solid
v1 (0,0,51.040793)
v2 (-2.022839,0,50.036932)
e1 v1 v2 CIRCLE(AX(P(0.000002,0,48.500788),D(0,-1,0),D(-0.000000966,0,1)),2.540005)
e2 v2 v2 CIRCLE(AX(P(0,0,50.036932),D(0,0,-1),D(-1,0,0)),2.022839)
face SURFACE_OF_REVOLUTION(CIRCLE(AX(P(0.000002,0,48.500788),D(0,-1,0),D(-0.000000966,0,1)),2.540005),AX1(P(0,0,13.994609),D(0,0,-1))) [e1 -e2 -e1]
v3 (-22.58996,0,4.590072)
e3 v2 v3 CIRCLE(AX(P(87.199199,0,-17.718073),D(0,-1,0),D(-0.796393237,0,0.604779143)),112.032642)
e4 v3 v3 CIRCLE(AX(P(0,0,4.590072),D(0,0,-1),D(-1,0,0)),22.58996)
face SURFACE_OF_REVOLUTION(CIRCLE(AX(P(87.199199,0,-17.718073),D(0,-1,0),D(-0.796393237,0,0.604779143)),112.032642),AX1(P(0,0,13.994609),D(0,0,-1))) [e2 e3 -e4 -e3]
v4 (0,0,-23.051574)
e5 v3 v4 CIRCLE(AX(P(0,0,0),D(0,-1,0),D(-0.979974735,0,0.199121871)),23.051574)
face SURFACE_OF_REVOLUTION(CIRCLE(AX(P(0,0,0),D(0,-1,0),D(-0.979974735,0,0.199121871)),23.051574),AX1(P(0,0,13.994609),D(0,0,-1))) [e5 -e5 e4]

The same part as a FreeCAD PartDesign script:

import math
import FreeCAD as App
import Part
import Sketcher

doc = App.newDocument("Part")
body = doc.addObject("PartDesign::Body", "Body")

# Sketch on XZ plane
sketch1 = body.newObject("Sketcher::SketchObject", "Sketch")
sketch1.AttachmentSupport = (doc.getObject("XZ_Plane"), [""])
sketch1.MapMode = "FlatFace"
sketch1.addGeometry(Part.ArcOfCircle(Part.Circle(App.Vector(87.199199, -17.718073, 0), App.Vector(0, 0, 1), 112.032642), math.radians(142.787049), math.radians(168.514389)), False)
sketch1.addGeometry(Part.ArcOfCircle(Part.Circle(App.Vector(0, 0, 0), App.Vector(0, 0, 1), 23.051574), math.radians(168.514387), math.radians(270.000001)), False)
sketch1.addGeometry(Part.LineSegment(App.Vector(0, -23.051574, 0), App.Vector(0, 51.040793, 0)), False)
sketch1.addGeometry(Part.ArcOfCircle(Part.Circle(App.Vector(0.000002, 48.500788, 0), App.Vector(0, 0, 1), 2.540005), math.radians(90.000055), math.radians(142.786991)), False)
sketch1.addConstraint(Sketcher.Constraint("Tangent", 0, 2, 1, 1))
sketch1.addConstraint(Sketcher.Constraint("Coincident", 1, 2, 2, 1))
sketch1.addConstraint(Sketcher.Constraint("Coincident", 2, 2, 3, 1))
sketch1.addConstraint(Sketcher.Constraint("Tangent", 3, 2, 0, 1))
sketch1.addConstraint(Sketcher.Constraint("Vertical", 2))
sketch1.addConstraint(Sketcher.Constraint("Coincident", 1, 3, -1, 1))
sketch1.addConstraint(Sketcher.Constraint("PointOnObject", 1, 2, -2))
sketch1.addConstraint(Sketcher.Constraint("Radius", 0, 112.032642))
sketch1.addConstraint(Sketcher.Constraint("Radius", 1, 23.051574))
sketch1.addConstraint(Sketcher.Constraint("Radius", 3, 2.540005))
sketch1.addConstraint(Sketcher.Constraint("DistanceX", -1, 1, 0, 3, 87.199199))
sketch1.addConstraint(Sketcher.Constraint("DistanceY", 2, 1, 2, 2, 74.092367))
revolution = body.newObject("PartDesign::Revolution", "Revolution")
revolution.Profile = sketch1
revolution.ReferenceAxis = (sketch1, ["V_Axis"])
revolution.Angle = 360

doc.recompute()
